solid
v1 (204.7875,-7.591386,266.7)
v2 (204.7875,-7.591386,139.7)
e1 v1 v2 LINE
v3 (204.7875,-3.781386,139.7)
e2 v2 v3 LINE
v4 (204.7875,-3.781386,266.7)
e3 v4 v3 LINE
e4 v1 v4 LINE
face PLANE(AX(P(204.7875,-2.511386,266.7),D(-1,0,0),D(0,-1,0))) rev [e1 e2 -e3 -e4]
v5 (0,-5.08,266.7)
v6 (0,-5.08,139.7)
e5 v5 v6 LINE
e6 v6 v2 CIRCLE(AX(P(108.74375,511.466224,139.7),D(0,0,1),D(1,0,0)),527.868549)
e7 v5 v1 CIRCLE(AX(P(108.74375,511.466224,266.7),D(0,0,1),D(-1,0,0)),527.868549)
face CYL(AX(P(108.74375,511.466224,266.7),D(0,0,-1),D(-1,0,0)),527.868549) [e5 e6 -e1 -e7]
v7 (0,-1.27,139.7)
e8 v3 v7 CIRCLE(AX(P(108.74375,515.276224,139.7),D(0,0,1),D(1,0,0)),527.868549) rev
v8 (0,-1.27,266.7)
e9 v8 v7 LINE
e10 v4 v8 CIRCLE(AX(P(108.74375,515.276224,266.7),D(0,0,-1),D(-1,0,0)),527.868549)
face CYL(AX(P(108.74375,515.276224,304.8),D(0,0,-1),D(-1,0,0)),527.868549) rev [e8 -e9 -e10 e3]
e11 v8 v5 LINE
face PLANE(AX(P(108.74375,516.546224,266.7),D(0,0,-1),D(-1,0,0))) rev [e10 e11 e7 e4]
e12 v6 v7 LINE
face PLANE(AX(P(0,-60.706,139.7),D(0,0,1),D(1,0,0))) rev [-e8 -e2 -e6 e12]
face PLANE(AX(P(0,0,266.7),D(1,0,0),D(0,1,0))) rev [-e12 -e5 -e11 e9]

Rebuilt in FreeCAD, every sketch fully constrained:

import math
import FreeCAD as App
import Part
import Sketcher
from FreeCAD import Vector
Q = App.Units.Quantity


def add_polygon(sketch, points):
    """Adds a closed chain of lines whose ends are joined by coincident constraints."""
    first, n = sketch.GeometryCount, len(points)
    for a, b in zip(points, points[1:] + points[:1]):
        sketch.addGeometry(Part.LineSegment(App.Vector(*a, 0), App.Vector(*b, 0)), False)
    for i in range(n):
        sketch.addConstraint(Sketcher.Constraint("Coincident", first + i, 2, first + (i + 1) % n, 1))

doc = App.newDocument("Part")
params = doc.addObject("Spreadsheet::Sheet", "Params")
for row, (alias, value) in enumerate([
    ("sketch1_height", "0.2 in"),
    ("pad1_length", "10.5 in"),
    ("sketch2_height", "0.05 in"),
    ("pocket1_length", "12 in"),
    ("sketch3_height", "5.5 in"),
    ("sketch3_width", "8.0625 in"),
    ("pocket2_length", "2.39 in"),
], start=1):
    params.set(f"A{row}", alias)
    params.set(f"B{row}", "=" + value)
    params.setAlias(f"B{row}", alias)

body = doc.addObject("PartDesign::Body", "Body")

# Sketch on XY plane
sketch1 = body.newObject("Sketcher::SketchObject", "Sketch")
sketch1.AttachmentSupport = (doc.getObject("XY_Plane"), [""])
sketch1.MapMode = "FlatFace"
sketch1.addGeometry(Part.LineSegment(Vector(205, -8, 0), Vector(205, -3, 0)), False)
sketch1.addGeometry(Part.ArcOfCircle(Part.Circle(Vector(109, 517, 0), Vector(0, 0, 1), 528), math.radians(-102), math.radians(-80)), False)
sketch1.addGeometry(Part.LineSegment(Vector(0, 0, 0), Vector(0, -5, 0)), False)
sketch1.addGeometry(Part.ArcOfCircle(Part.Circle(Vector(109, 511, 0), Vector(0, 0, 1), 528), math.radians(-102), math.radians(-80)), False)
sketch1.addConstraint(Sketcher.Constraint("Coincident", 0, 2, 1, 2))
sketch1.addConstraint(Sketcher.Constraint("Coincident", 1, 1, 2, 1))
sketch1.addConstraint(Sketcher.Constraint("Coincident", 2, 2, 3, 1))
sketch1.addConstraint(Sketcher.Constraint("Coincident", 3, 2, 0, 1))
sketch1.addConstraint(Sketcher.Constraint("Vertical", 0))
sketch1.addConstraint(Sketcher.Constraint("Vertical", 2))
sketch1.addConstraint(Sketcher.Constraint("Equal", 1, 3))
sketch1.addConstraint(Sketcher.Constraint("PointOnObject", 2, 2, -2))
sketch1.addConstraint(Sketcher.Constraint("Vertical", 1, 3, 3, 3))
sketch1.addConstraint(Sketcher.Constraint("DistanceY", 0, 1, 0, 2, Q("0.2 in")))
sketch1.addConstraint(Sketcher.Constraint("DistanceY", 2, 2, -1, 1, Q("0.2 in")))
sketch1.addConstraint(Sketcher.Constraint("DistanceX", -1, 1, 1, 3, Q("4.28125 in")))
sketch1.addConstraint(Sketcher.Constraint("DistanceX", -1, 1, 0, 2, Q("8.0625 in")))
sketch1.addConstraint(Sketcher.Constraint("Radius", 1, 527.868549))
sketch1.setExpression("Constraints[9]", "Params.sketch1_height")
pad1 = body.newObject("PartDesign::Pad", "Pad")
pad1.Profile = sketch1
pad1.setExpression("Length", "Params.pad1_length")

# Sketch on XY plane
sketch2 = body.newObject("Sketcher::SketchObject", "Sketch001")
sketch2.AttachmentSupport = (doc.getObject("XY_Plane"), [""])
sketch2.MapMode = "FlatFace"
sketch2.addGeometry(Part.ArcOfCircle(Part.Circle(Vector(108.7, 516.5, 0), Vector(0, 0, 1), 527.9), math.radians(-102), math.radians(-80)), False)
sketch2.addGeometry(Part.LineSegment(Vector(204.8, -2.5, 0), Vector(204.8, -3.8, 0)), False)
sketch2.addGeometry(Part.ArcOfCircle(Part.Circle(Vector(108.7, 515.3, 0), Vector(0, 0, 1), 527.9), math.radians(-102), math.radians(-80)), False)
sketch2.addGeometry(Part.LineSegment(Vector(0, -1.3, 0), Vector(0, 0, 0)), False)
sketch2.addConstraint(Sketcher.Constraint("Coincident", 0, 2, 1, 1))
sketch2.addConstraint(Sketcher.Constraint("Coincident", 1, 2, 2, 2))
sketch2.addConstraint(Sketcher.Constraint("Coincident", 2, 1, 3, 1))
sketch2.addConstraint(Sketcher.Constraint("Coincident", 3, 2, 0, 1))
sketch2.addConstraint(Sketcher.Constraint("Vertical", 1))
sketch2.addConstraint(Sketcher.Constraint("Vertical", 3))
sketch2.addConstraint(Sketcher.Constraint("Coincident", 3, 2, -1, 1))
sketch2.addConstraint(Sketcher.Constraint("Equal", 0, 2))
sketch2.addConstraint(Sketcher.Constraint("Vertical", 0, 3, 2, 3))
sketch2.addConstraint(Sketcher.Constraint("DistanceY", 1, 2, 1, 1, Q("0.05 in")))
sketch2.addConstraint(Sketcher.Constraint("DistanceX", -1, 1, 0, 3, Q("4.28125 in")))
sketch2.addConstraint(Sketcher.Constraint("DistanceX", -1, 1, 1, 2, Q("8.0625 in")))
sketch2.addConstraint(Sketcher.Constraint("Radius", 0, 527.868549))
sketch2.setExpression("Constraints[9]", "Params.sketch2_height")
pocket1 = body.newObject("PartDesign::Pocket", "Pocket")
pocket1.Profile = sketch2
pocket1.setExpression("Length", "Params.pocket1_length")
pocket1.Reversed = True

# Sketch on XZ plane
sketch3 = body.newObject("Sketcher::SketchObject", "Sketch002")
sketch3.AttachmentSupport = (doc.getObject("XZ_Plane"), [""])
sketch3.MapMode = "FlatFace"
add_polygon(sketch3, [(0, 140), (205, 140), (205, 0), (0, 0)])  # lines 0-3
sketch3.addConstraint(Sketcher.Constraint("Horizontal", 0))
sketch3.addConstraint(Sketcher.Constraint("Vertical", 1))
sketch3.addConstraint(Sketcher.Constraint("Horizontal", 2))
sketch3.addConstraint(Sketcher.Constraint("Vertical", 3))
sketch3.addConstraint(Sketcher.Constraint("Coincident", 2, 2, -1, 1))
sketch3.addConstraint(Sketcher.Constraint("DistanceY", 1, 2, 1, 1, Q("5.5 in")))
sketch3.addConstraint(Sketcher.Constraint("DistanceX", 0, 1, 0, 2, Q("8.0625 in")))
sketch3.setExpression("Constraints[9]", "Params.sketch3_height")
sketch3.setExpression("Constraints[10]", "Params.sketch3_width")
pocket2 = body.newObject("PartDesign::Pocket", "Pocket001")
pocket2.Profile = sketch3
pocket2.setExpression("Length", "Params.pocket2_length")
pocket2.Reversed = True

doc.recompute()
